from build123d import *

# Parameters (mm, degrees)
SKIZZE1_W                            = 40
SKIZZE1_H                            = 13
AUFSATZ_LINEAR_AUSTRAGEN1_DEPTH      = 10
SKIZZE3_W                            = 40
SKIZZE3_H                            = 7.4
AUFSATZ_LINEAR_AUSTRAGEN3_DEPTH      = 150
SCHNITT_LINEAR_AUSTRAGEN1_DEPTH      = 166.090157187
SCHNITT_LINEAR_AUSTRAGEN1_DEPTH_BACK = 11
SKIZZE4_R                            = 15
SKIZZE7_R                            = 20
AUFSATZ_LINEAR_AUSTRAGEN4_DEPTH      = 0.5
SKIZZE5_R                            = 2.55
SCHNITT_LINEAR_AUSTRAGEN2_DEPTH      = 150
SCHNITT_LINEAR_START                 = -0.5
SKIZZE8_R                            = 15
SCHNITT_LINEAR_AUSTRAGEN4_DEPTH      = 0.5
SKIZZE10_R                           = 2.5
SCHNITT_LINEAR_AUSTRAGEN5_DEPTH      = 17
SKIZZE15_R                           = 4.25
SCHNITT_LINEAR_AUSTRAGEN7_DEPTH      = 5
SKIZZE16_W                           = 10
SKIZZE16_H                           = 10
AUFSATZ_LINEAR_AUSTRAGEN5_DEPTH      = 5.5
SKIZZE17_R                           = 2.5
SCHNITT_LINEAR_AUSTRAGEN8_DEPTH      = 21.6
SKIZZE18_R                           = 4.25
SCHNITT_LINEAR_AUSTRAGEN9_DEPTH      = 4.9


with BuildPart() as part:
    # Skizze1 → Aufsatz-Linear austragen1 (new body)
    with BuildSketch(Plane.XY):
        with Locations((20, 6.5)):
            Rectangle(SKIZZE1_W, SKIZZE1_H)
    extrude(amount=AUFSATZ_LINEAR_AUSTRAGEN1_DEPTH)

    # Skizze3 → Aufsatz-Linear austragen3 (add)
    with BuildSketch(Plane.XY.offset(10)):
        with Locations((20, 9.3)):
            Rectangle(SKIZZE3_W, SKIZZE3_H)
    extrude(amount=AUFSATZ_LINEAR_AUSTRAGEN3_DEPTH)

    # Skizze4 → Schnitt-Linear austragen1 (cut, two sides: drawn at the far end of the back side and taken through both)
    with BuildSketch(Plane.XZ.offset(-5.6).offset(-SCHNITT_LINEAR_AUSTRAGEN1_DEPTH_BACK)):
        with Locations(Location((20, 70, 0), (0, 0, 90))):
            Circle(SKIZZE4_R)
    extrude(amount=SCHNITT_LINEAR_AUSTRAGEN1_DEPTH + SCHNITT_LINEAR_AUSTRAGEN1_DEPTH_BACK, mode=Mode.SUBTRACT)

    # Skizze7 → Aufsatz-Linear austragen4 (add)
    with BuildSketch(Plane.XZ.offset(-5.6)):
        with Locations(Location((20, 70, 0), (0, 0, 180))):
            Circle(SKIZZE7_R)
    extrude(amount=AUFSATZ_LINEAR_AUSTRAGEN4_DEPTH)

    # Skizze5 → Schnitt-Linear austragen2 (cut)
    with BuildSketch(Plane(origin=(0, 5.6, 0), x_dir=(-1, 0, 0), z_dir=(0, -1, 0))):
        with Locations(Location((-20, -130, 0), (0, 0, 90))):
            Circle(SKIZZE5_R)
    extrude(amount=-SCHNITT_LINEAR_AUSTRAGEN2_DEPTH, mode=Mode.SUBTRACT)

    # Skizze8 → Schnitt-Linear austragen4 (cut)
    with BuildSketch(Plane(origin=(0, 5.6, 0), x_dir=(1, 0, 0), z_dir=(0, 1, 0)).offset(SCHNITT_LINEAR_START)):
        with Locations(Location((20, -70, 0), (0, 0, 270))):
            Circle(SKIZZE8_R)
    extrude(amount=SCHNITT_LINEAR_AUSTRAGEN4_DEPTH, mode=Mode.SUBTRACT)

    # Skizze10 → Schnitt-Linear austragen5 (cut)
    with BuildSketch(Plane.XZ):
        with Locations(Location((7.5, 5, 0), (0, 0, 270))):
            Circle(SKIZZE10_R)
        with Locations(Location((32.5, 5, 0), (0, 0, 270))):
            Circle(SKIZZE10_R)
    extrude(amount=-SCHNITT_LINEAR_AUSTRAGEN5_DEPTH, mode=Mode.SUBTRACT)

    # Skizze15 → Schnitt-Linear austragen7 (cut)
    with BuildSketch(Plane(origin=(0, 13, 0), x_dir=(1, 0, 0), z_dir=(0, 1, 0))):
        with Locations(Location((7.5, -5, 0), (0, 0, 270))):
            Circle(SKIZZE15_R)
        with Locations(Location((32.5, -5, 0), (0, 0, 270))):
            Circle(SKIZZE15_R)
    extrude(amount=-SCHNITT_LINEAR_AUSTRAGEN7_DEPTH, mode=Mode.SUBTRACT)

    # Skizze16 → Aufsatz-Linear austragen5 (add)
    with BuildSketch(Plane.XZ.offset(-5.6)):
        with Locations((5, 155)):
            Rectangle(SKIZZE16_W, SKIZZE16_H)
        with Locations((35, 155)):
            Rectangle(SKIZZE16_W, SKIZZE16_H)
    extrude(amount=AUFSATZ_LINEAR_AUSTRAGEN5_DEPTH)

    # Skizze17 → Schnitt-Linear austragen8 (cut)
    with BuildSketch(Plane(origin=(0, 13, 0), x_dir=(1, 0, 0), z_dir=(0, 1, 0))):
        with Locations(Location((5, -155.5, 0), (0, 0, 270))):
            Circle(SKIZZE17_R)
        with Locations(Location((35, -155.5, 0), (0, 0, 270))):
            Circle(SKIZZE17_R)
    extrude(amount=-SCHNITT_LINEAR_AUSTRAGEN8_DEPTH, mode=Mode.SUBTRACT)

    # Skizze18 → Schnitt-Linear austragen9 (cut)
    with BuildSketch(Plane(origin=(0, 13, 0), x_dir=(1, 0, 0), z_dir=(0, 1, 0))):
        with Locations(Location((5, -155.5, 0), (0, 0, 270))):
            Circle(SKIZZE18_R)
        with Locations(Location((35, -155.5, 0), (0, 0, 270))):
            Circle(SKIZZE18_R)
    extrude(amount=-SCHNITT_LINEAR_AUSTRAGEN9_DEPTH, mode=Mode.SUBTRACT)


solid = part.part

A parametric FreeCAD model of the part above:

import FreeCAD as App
import Part
import Sketcher

V = App.Vector

doc = App.newDocument("Part")
body = doc.addObject("PartDesign::Body", "Body")

# Sketch on XY plane
sketch1 = doc.addObject("Sketcher::SketchObject", "Sketch")
body.addObject(sketch1)
sketch1.AttachmentSupport = (doc.XY_Plane, [""])
sketch1.MapMode = "FlatFace"
sketch1.addGeometry([
    Part.LineSegment(V(0, 13, 0), V(0, 0, 0)),
    Part.LineSegment(V(0, 0, 0), V(40, 0, 0)),
    Part.LineSegment(V(40, 0, 0), V(40, 13, 0)),
    Part.LineSegment(V(40, 13, 0), V(0, 13, 0)),
], False)
sketch1.addConstraint([
    Sketcher.Constraint("Coincident", 0, 2, 1, 1),
    Sketcher.Constraint("Coincident", 1, 2, 2, 1),
    Sketcher.Constraint("Coincident", 2, 2, 3, 1),
    Sketcher.Constraint("Coincident", 3, 2, 0, 1),
    Sketcher.Constraint("Vertical", 0),
    Sketcher.Constraint("Horizontal", 1),
    Sketcher.Constraint("Vertical", 2),
    Sketcher.Constraint("Horizontal", 3),
    Sketcher.Constraint("Coincident", 0, 2, -1, 1),
    Sketcher.Constraint("DistanceX", 1, 1, 1, 2, 40.0),
    Sketcher.Constraint("DistanceY", 0, 2, 0, 1, 13.0),
])
pad1 = doc.addObject("PartDesign::Pad", "Pad")
body.addObject(pad1)
pad1.Profile = sketch1
pad1.Length = 10

# Sketch on XY plane
sketch2 = doc.addObject("Sketcher::SketchObject", "Sketch001")
body.addObject(sketch2)
sketch2.AttachmentSupport = (doc.XY_Plane, [""])
sketch2.MapMode = "FlatFace"
sketch2.AttachmentOffset = App.Placement(V(0, 0, 10), App.Rotation())
sketch2.addGeometry([
    Part.LineSegment(V(0, 13, 0), V(0, 6, 0)),
    Part.LineSegment(V(0, 6, 0), V(40, 6, 0)),
    Part.LineSegment(V(40, 6, 0), V(40, 13, 0)),
    Part.LineSegment(V(40, 13, 0), V(0, 13, 0)),
], False)
sketch2.addConstraint([
    Sketcher.Constraint("Coincident", 0, 2, 1, 1),
    Sketcher.Constraint("Coincident", 1, 2, 2, 1),
    Sketcher.Constraint("Coincident", 2, 2, 3, 1),
    Sketcher.Constraint("Coincident", 3, 2, 0, 1),
    Sketcher.Constraint("Vertical", 0),
    Sketcher.Constraint("Horizontal", 1),
    Sketcher.Constraint("Vertical", 2),
    Sketcher.Constraint("Horizontal", 3),
    Sketcher.Constraint("PointOnObject", 0, 2, -2),
    Sketcher.Constraint("DistanceX", 1, 1, 1, 2, 40.0),
    Sketcher.Constraint("DistanceY", 0, 2, 0, 1, 7.4),
    Sketcher.Constraint("DistanceY", -1, 1, 2, 2, 13.0),
])
pad2 = doc.addObject("PartDesign::Pad", "Pad001")
body.addObject(pad2)
pad2.Profile = sketch2
pad2.Length = 150

# Sketch on XZ plane
sketch3 = doc.addObject("Sketcher::SketchObject", "Sketch002")
body.addObject(sketch3)
sketch3.AttachmentSupport = (doc.XZ_Plane, [""])
sketch3.MapMode = "FlatFace"
sketch3.AttachmentOffset = App.Placement(V(0, 0, -5.6), App.Rotation())
sketch3.addGeometry(Part.Circle(V(20, 70, 0), V(0, 0, 1), 15), False)
sketch3.addConstraint([
    Sketcher.Constraint("Diameter", 0, 30.0),
    Sketcher.Constraint("DistanceX", -1, 1, 0, 3, 20.0),
    Sketcher.Constraint("DistanceY", -1, 1, 0, 3, 70.0),
])
pocket1 = doc.addObject("PartDesign::Pocket", "Pocket")
body.addObject(pocket1)
pocket1.Profile = sketch3
pocket1.Type = "ThroughAll"
pocket1.Midplane = True

# Sketch on XZ plane
sketch4 = doc.addObject("Sketcher::SketchObject", "Sketch003")
body.addObject(sketch4)
sketch4.AttachmentSupport = (doc.XZ_Plane, [""])
sketch4.MapMode = "FlatFace"
sketch4.AttachmentOffset = App.Placement(V(0, 0, -5.6), App.Rotation())
sketch4.addGeometry(Part.Circle(V(20, 70, 0), V(0, 0, 1), 20), False)
sketch4.addConstraint([
    Sketcher.Constraint("Diameter", 0, 40.0),
    Sketcher.Constraint("DistanceX", -1, 1, 0, 3, 20.0),
    Sketcher.Constraint("DistanceY", -1, 1, 0, 3, 70.0),
])
pad3 = doc.addObject("PartDesign::Pad", "Pad002")
body.addObject(pad3)
pad3.Profile = sketch4
pad3.Length = 0.5

# Sketch on XZ plane
sketch5 = doc.addObject("Sketcher::SketchObject", "Sketch004")
body.addObject(sketch5)
sketch5.AttachmentSupport = (doc.XZ_Plane, [""])
sketch5.MapMode = "FlatFace"
sketch5.AttachmentOffset = App.Placement(V(0, 0, -5.6), App.Rotation())
sketch5.addGeometry(Part.Circle(V(20, 130, 0), V(0, 0, 1), 2.5), False)
sketch5.addConstraint([
    Sketcher.Constraint("Diameter", 0, 5.1),
    Sketcher.Constraint("DistanceX", -1, 1, 0, 3, 20.0),
    Sketcher.Constraint("DistanceY", -1, 1, 0, 3, 130.0),
])
pocket2 = doc.addObject("PartDesign::Pocket", "Pocket001")
body.addObject(pocket2)
pocket2.Profile = sketch5
pocket2.Length = 150

# Sketch on XZ plane
sketch6 = doc.addObject("Sketcher::SketchObject", "Sketch005")
body.addObject(sketch6)
sketch6.AttachmentSupport = (doc.XZ_Plane, [""])
sketch6.MapMode = "FlatFace"
sketch6.AttachmentOffset = App.Placement(V(0, 0, -5.1), App.Rotation())
sketch6.addGeometry(Part.Circle(V(20, 70, 0), V(0, 0, 1), 15), False)
sketch6.addConstraint([
    Sketcher.Constraint("Diameter", 0, 30.0),
    Sketcher.Constraint("DistanceX", -1, 1, 0, 3, 20.0),
    Sketcher.Constraint("DistanceY", -1, 1, 0, 3, 70.0),
])
pocket3 = doc.addObject("PartDesign::Pocket", "Pocket002")
body.addObject(pocket3)
pocket3.Profile = sketch6
pocket3.Length = 0.5

# Sketch on XZ plane
sketch7 = doc.addObject("Sketcher::SketchObject", "Sketch006")
body.addObject(sketch7)
sketch7.AttachmentSupport = (doc.XZ_Plane, [""])
sketch7.MapMode = "FlatFace"
sketch7.addGeometry([
    Part.Circle(V(7.5, 5, 0), V(0, 0, 1), 2.5),
    Part.Circle(V(32.5, 5, 0), V(0, 0, 1), 2.5),
], False)
sketch7.addConstraint([
    Sketcher.Constraint("Equal", 0, 1),
    Sketcher.Constraint("Horizontal", 0, 3, 1, 3),
    Sketcher.Constraint("Diameter", 0, 5.0),
    Sketcher.Constraint("DistanceY", -1, 1, 0, 3, 5.0),
    Sketcher.Constraint("DistanceX", 0, 3, 1, 3, 25.0),
    Sketcher.Constraint("DistanceX", -1, 1, 0, 3, 7.5),
])
pocket4 = doc.addObject("PartDesign::Pocket", "Pocket003")
body.addObject(pocket4)
pocket4.Profile = sketch7
pocket4.Length = 17

# Sketch on XZ plane
sketch8 = doc.addObject("Sketcher::SketchObject", "Sketch007")
body.addObject(sketch8)
sketch8.AttachmentSupport = (doc.XZ_Plane, [""])
sketch8.MapMode = "FlatFace"
sketch8.AttachmentOffset = App.Placement(V(0, 0, -13), App.Rotation())
sketch8.addGeometry([
    Part.Circle(V(7.5, 5, 0), V(0, 0, 1), 4.2),
    Part.Circle(V(32.5, 5, 0), V(0, 0, 1), 4.2),
], False)
sketch8.addConstraint([
    Sketcher.Constraint("Equal", 0, 1),
    Sketcher.Constraint("Horizontal", 0, 3, 1, 3),
    Sketcher.Constraint("Diameter", 0, 8.5),
    Sketcher.Constraint("DistanceY", -1, 1, 0, 3, 5.0),
    Sketcher.Constraint("DistanceX", 0, 3, 1, 3, 25.0),
    Sketcher.Constraint("DistanceX", -1, 1, 0, 3, 7.5),
])
pocket5 = doc.addObject("PartDesign::Pocket", "Pocket004")
body.addObject(pocket5)
pocket5.Profile = sketch8
pocket5.Length = 5
pocket5.Reversed = True

# Sketch on XZ plane
sketch9 = doc.addObject("Sketcher::SketchObject", "Sketch008")
body.addObject(sketch9)
sketch9.AttachmentSupport = (doc.XZ_Plane, [""])
sketch9.MapMode = "FlatFace"
sketch9.AttachmentOffset = App.Placement(V(0, 0, -5.6), App.Rotation())
sketch9.addGeometry([
    Part.LineSegment(V(0, 160, 0), V(0, 150, 0)),  # 0
    Part.LineSegment(V(0, 150, 0), V(10, 150, 0)),  # 1
    Part.LineSegment(V(10, 150, 0), V(10, 160, 0)),  # 2
    Part.LineSegment(V(10, 160, 0), V(0, 160, 0)),  # 3
    Part.LineSegment(V(30, 160, 0), V(30, 150, 0)),  # 4
    Part.LineSegment(V(30, 150, 0), V(40, 150, 0)),  # 5
    Part.LineSegment(V(40, 150, 0), V(40, 160, 0)),  # 6
    Part.LineSegment(V(40, 160, 0), V(30, 160, 0)),  # 7
], False)
sketch9.addConstraint([
    Sketcher.Constraint("Coincident", 0, 2, 1, 1),
    Sketcher.Constraint("Coincident", 1, 2, 2, 1),
    Sketcher.Constraint("Coincident", 2, 2, 3, 1),
    Sketcher.Constraint("Coincident", 3, 2, 0, 1),
    Sketcher.Constraint("Coincident", 4, 2, 5, 1),
    Sketcher.Constraint("Coincident", 5, 2, 6, 1),
    Sketcher.Constraint("Coincident", 6, 2, 7, 1),
    Sketcher.Constraint("Coincident", 7, 2, 4, 1),
    Sketcher.Constraint("Vertical", 0),
    Sketcher.Constraint("Horizontal", 1),
    Sketcher.Constraint("Vertical", 2),
    Sketcher.Constraint("Horizontal", 3),
    Sketcher.Constraint("Vertical", 4),
    Sketcher.Constraint("Horizontal", 5),
    Sketcher.Constraint("Vertical", 6),
    Sketcher.Constraint("Horizontal", 7),
    Sketcher.Constraint("PointOnObject", 0, 2, -2),
    Sketcher.Constraint("Horizontal", 1, 2, 4, 2),
    Sketcher.Constraint("Horizontal", 3, 2, 6, 2),
    Sketcher.Constraint("Equal", 3, 5),
    Sketcher.Constraint("Equal", 7, 0),
    Sketcher.Constraint("DistanceX", 1, 1, 1, 2, 10.0),
    Sketcher.Constraint("DistanceY", -1, 1, 0, 2, 150.0),
    Sketcher.Constraint("DistanceX", -1, 1, 4, 2, 30.0),
])
pad4 = doc.addObject("PartDesign::Pad", "Pad003")
body.addObject(pad4)
pad4.Profile = sketch9
pad4.Length = 5.5

# Sketch on XZ plane
sketch10 = doc.addObject("Sketcher::SketchObject", "Sketch009")
body.addObject(sketch10)
sketch10.AttachmentSupport = (doc.XZ_Plane, [""])
sketch10.MapMode = "FlatFace"
sketch10.AttachmentOffset = App.Placement(V(0, 0, -13), App.Rotation())
sketch10.addGeometry([
    Part.Circle(V(5, 155.5, 0), V(0, 0, 1), 2.5),
    Part.Circle(V(35, 155.5, 0), V(0, 0, 1), 2.5),
], False)
sketch10.addConstraint([
    Sketcher.Constraint("Equal", 0, 1),
    Sketcher.Constraint("Horizontal", 0, 3, 1, 3),
    Sketcher.Constraint("Diameter", 0, 5.0),
    Sketcher.Constraint("DistanceX", -1, 1, 0, 3, 5.0),
    Sketcher.Constraint("DistanceX", -1, 1, 1, 3, 35.0),
    Sketcher.Constraint("DistanceY", -1, 1, 0, 3, 155.5),
])
pocket6 = doc.addObject("PartDesign::Pocket", "Pocket005")
body.addObject(pocket6)
pocket6.Profile = sketch10
pocket6.Length = 21.6
pocket6.Reversed = True

# Sketch on XZ plane
sketch11 = doc.addObject("Sketcher::SketchObject", "Sketch010")
body.addObject(sketch11)
sketch11.AttachmentSupport = (doc.XZ_Plane, [""])
sketch11.MapMode = "FlatFace"
sketch11.AttachmentOffset = App.Placement(V(0, 0, -13), App.Rotation())
sketch11.addGeometry([
    Part.Circle(V(5, 155.5, 0), V(0, 0, 1), 4.2),
    Part.Circle(V(35, 155.5, 0), V(0, 0, 1), 4.2),
], False)
sketch11.addConstraint([
    Sketcher.Constraint("Equal", 0, 1),
    Sketcher.Constraint("Horizontal", 0, 3, 1, 3),
    Sketcher.Constraint("Diameter", 0, 8.5),
    Sketcher.Constraint("DistanceX", -1, 1, 0, 3, 5.0),
    Sketcher.Constraint("DistanceX", -1, 1, 1, 3, 35.0),
    Sketcher.Constraint("DistanceY", -1, 1, 0, 3, 155.5),
])
pocket7 = doc.addObject("PartDesign::Pocket", "Pocket006")
body.addObject(pocket7)
pocket7.Profile = sketch11
pocket7.Length = 4.9
pocket7.Reversed = True

doc.recompute()
